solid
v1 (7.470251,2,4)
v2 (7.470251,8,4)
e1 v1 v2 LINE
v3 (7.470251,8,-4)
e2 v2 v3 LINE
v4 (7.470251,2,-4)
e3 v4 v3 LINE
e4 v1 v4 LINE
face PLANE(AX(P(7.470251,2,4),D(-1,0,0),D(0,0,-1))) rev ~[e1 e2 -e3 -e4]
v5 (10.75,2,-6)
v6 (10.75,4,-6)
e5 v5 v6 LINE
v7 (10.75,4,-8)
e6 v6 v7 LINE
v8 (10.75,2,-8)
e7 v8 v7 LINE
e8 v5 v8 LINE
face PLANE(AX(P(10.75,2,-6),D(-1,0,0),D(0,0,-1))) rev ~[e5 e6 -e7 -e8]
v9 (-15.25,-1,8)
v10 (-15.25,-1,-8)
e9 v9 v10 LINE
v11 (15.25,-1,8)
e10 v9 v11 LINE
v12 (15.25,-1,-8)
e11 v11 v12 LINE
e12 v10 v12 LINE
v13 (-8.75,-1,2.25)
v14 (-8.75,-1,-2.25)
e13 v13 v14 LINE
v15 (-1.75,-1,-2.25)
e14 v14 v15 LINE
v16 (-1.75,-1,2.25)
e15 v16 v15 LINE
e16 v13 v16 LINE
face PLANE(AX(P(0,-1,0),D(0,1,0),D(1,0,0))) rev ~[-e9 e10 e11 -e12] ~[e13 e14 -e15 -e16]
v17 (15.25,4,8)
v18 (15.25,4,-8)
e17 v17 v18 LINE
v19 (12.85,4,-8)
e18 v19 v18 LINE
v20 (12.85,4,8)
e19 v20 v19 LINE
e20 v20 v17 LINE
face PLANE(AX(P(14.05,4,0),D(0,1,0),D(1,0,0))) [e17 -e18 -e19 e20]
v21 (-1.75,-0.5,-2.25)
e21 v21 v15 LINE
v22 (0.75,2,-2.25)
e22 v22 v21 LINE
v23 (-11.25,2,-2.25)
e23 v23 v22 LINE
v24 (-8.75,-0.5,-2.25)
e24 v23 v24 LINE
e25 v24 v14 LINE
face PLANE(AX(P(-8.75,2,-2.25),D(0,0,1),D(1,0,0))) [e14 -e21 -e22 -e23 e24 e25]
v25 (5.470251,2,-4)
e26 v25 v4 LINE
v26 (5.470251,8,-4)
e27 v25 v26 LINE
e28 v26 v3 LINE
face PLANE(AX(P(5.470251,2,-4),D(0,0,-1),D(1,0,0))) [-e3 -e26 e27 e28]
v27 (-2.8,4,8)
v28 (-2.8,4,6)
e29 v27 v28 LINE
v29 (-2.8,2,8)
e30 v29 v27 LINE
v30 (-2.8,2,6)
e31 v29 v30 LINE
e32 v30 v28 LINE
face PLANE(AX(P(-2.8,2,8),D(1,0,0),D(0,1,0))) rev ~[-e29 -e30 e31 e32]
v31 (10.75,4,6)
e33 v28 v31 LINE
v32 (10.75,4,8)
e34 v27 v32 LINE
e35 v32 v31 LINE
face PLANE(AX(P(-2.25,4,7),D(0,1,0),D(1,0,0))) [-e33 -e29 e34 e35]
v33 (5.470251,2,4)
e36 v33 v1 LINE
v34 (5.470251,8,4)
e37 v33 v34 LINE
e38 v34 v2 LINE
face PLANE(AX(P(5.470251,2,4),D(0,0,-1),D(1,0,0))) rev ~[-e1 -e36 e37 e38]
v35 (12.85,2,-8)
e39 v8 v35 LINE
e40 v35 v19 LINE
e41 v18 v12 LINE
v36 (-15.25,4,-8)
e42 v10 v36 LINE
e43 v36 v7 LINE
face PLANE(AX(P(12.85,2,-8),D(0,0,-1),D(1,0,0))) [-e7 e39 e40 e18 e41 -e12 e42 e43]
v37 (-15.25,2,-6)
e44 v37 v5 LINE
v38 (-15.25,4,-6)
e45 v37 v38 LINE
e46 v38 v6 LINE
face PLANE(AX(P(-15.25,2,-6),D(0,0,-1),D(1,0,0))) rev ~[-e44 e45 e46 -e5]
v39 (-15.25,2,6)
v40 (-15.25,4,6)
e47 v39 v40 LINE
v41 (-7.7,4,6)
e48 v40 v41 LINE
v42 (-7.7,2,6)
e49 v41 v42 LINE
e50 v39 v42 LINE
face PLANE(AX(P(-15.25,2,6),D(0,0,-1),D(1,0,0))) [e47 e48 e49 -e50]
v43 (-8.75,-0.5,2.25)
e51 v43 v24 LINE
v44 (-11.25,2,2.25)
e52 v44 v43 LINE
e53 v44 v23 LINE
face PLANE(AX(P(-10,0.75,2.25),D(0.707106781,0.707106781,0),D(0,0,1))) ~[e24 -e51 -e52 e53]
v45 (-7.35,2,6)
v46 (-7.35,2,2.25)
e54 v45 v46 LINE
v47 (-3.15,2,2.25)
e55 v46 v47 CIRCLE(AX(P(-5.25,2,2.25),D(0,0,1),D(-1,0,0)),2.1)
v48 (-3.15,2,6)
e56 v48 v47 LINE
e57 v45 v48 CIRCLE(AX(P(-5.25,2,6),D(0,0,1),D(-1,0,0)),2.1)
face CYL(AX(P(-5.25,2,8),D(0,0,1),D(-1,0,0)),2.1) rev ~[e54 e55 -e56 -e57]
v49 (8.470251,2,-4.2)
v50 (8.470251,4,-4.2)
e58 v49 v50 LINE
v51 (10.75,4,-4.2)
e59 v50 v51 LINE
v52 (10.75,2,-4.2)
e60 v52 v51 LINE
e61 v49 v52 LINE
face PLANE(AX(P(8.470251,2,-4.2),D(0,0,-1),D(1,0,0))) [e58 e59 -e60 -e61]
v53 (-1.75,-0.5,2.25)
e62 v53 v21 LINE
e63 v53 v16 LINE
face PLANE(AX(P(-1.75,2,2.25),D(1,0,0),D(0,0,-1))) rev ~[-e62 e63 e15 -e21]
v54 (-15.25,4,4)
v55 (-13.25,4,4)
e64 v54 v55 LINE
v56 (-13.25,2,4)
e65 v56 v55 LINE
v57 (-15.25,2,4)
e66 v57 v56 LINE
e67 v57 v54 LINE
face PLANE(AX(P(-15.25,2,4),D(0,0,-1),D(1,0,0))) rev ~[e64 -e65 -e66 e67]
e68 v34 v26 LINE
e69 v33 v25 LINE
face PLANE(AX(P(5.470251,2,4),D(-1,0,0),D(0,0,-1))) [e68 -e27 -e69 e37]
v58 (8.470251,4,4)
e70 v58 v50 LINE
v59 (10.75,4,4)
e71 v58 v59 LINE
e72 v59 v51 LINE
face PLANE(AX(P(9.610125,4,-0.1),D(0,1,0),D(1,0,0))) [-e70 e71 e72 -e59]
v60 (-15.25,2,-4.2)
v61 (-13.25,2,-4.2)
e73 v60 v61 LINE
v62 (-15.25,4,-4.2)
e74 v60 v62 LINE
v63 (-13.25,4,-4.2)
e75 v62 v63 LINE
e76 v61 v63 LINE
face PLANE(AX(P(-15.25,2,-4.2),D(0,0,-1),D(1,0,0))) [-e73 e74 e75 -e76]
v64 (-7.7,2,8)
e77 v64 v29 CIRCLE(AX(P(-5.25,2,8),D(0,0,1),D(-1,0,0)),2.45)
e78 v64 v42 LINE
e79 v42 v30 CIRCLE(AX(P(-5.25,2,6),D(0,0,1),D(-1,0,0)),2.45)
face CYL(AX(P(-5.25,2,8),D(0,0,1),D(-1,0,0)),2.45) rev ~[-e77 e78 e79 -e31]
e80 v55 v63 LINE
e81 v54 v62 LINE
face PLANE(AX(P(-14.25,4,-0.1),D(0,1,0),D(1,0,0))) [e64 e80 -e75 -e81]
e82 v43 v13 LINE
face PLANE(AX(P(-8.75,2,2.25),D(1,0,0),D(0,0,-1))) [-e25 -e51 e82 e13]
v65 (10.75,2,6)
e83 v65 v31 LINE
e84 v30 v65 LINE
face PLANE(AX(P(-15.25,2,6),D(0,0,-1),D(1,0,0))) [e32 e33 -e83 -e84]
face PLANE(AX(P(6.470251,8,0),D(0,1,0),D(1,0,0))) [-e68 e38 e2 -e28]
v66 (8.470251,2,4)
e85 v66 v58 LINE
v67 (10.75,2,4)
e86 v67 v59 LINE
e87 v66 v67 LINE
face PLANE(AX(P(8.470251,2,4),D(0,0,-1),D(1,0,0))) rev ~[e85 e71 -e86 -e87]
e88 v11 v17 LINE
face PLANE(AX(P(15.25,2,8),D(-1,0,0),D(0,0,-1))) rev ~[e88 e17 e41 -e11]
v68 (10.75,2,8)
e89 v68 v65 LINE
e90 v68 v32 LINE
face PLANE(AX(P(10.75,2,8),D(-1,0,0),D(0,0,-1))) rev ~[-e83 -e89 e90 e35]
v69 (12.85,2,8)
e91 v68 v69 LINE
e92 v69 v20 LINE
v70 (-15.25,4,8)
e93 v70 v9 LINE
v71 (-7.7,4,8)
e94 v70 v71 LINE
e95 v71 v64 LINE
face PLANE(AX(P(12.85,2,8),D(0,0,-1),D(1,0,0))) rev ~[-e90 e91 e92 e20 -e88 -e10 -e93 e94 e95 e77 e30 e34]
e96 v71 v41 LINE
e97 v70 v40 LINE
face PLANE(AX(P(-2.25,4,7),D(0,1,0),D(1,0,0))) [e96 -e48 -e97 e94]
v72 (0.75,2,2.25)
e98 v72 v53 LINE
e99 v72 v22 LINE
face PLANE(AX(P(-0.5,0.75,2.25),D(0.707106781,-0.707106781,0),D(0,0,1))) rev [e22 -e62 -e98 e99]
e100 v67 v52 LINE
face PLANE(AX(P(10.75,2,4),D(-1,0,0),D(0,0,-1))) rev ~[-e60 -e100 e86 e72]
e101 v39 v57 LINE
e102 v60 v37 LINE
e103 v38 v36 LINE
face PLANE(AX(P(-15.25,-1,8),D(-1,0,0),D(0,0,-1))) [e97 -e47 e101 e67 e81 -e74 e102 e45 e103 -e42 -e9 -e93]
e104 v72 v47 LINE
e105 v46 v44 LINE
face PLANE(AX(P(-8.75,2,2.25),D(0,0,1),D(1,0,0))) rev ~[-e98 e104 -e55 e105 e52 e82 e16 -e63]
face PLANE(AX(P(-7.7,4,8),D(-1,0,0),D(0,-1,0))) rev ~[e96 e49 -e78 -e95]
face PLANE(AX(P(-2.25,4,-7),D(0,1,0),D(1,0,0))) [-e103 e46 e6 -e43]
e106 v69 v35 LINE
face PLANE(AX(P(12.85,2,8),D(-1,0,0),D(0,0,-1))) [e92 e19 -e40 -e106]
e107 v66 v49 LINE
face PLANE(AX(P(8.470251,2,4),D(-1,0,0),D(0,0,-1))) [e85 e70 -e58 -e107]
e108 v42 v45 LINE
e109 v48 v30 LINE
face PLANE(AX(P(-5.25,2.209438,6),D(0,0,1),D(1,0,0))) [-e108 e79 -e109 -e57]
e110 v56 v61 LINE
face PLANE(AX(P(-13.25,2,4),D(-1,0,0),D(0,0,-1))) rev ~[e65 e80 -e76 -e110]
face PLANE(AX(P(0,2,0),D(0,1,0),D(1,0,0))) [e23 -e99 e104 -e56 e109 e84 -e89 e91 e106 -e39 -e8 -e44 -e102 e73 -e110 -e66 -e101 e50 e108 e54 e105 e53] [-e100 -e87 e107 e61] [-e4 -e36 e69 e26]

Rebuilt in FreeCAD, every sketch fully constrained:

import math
import FreeCAD as App
import Part
import Sketcher
Q = App.Units.Quantity


def edges_at(feature, points):
    """Names of the edges that pass closest to the given points."""
    edges = feature.Shape.Edges
    near = lambda p: min(range(len(edges)), key=lambda i: edges[i].distToShape(Part.Vertex(*p))[0])
    return sorted({f"Edge{near(p) + 1}" for p in points})

doc = App.newDocument("Part")
params = doc.addObject("Spreadsheet::Sheet", "Params")
for row, (alias, value) in enumerate([
    ("sketch1_height", "16 mm"),
    ("sketch1_width", "30.5 mm"),
    ("pad1_length", "2 mm"),
    ("pad1_length2", "1 mm"),
    ("sketch2_width", "26 mm"),
    ("sketch2_width2", "2 mm"),
    ("sketch2_height", "16 mm"),
    ("sketch2_width3", "2.4 mm"),
    ("sketch2_height2", "8.2 mm"),
    ("pad2_length", "2 mm"),
    ("sketch3_width", "2 mm"),
    ("sketch3_height", "8 mm"),
    ("pad3_length", "6 mm"),
    ("sketch4_width", "7 mm"),
    ("sketch4_height", "4.5 mm"),
    ("pocket1_length", "3 mm"),
    ("sketch5_radius", "2.1 mm"),
    ("sketch5_height", "2.2 mm"),
    ("pocket2_length", "7 mm"),
    ("sketch6_height", "2 mm"),
    ("sketch6_radius", "2.45 mm"),
    ("pocket3_length", "2 mm"),
    ("chamfer_size", "2.5 mm"),
], start=1):
    params.set(f"A{row}", alias)
    params.set(f"B{row}", "=" + value)
    params.setAlias(f"B{row}", alias)

body = doc.addObject("PartDesign::Body", "Body")

# Sketch on XZ plane
sketch1 = body.newObject("Sketcher::SketchObject", "Sketch")
sketch1.AttachmentSupport = (doc.getObject("XZ_Plane"), [""])
sketch1.MapMode = "FlatFace"
sketch1.addGeometry([
    Part.LineSegment(App.Vector(-15.25, -8, 0), App.Vector(-15.25, 8, 0)),
    Part.LineSegment(App.Vector(-15.25, 8, 0), App.Vector(15.25, 8, 0)),
    Part.LineSegment(App.Vector(15.25, 8, 0), App.Vector(15.25, -8, 0)),
    Part.LineSegment(App.Vector(15.25, -8, 0), App.Vector(-15.25, -8, 0)),
], False)
sketch1.addConstraint([
    Sketcher.Constraint("Coincident", 0, 2, 1, 1),
    Sketcher.Constraint("Coincident", 1, 2, 2, 1),
    Sketcher.Constraint("Coincident", 2, 2, 3, 1),
    Sketcher.Constraint("Coincident", 3, 2, 0, 1),
    Sketcher.Constraint("Vertical", 0),
    Sketcher.Constraint("Horizontal", 1),
    Sketcher.Constraint("Vertical", 2),
    Sketcher.Constraint("Horizontal", 3),
    Sketcher.Constraint("Symmetric", 0, 2, 2, 2, -1, 1),
    Sketcher.Constraint("DistanceY", 0, 1, 0, 2, Q("16 mm")),
    Sketcher.Constraint("DistanceX", 1, 1, 1, 2, Q("30.5 mm")),
])
sketch1.setExpression("Constraints[9]", "Params.sketch1_height")
sketch1.setExpression("Constraints[10]", "Params.sketch1_width")
pad1 = body.newObject("PartDesign::Pad", "Pad")
pad1.Profile = sketch1
pad1.Type = "TwoLengths"
pad1.setExpression("Length", "Params.pad1_length")
pad1.setExpression("Length2", "Params.pad1_length2")
pad1.Reversed = True

# Sketch on XZ plane
sketch2 = body.newObject("Sketcher::SketchObject", "Sketch001")
sketch2.AttachmentSupport = (doc.getObject("XZ_Plane"), [""])
sketch2.MapMode = "FlatFace"
sketch2.AttachmentOffset = App.Placement(App.Vector(0, 0, -2), App.Rotation())
sketch2.addGeometry([
    Part.LineSegment(App.Vector(12.85, -8, 0), App.Vector(12.85, 8, 0)),  # 0
    Part.LineSegment(App.Vector(12.85, 8, 0), App.Vector(15.25, 8, 0)),  # 1
    Part.LineSegment(App.Vector(15.25, 8, 0), App.Vector(15.25, -8, 0)),  # 2
    Part.LineSegment(App.Vector(15.25, -8, 0), App.Vector(12.85, -8, 0)),  # 3
    Part.LineSegment(App.Vector(-15.25, -8, 0), App.Vector(-15.25, -6, 0)),  # 4
    Part.LineSegment(App.Vector(-15.25, -6, 0), App.Vector(10.75, -6, 0)),  # 5
    Part.LineSegment(App.Vector(10.75, -6, 0), App.Vector(10.75, -8, 0)),  # 6
    Part.LineSegment(App.Vector(10.75, -8, 0), App.Vector(-15.25, -8, 0)),  # 7
    Part.LineSegment(App.Vector(-15.25, 6, 0), App.Vector(-15.25, 8, 0)),  # 8
    Part.LineSegment(App.Vector(-15.25, 8, 0), App.Vector(10.75, 8, 0)),  # 9
    Part.LineSegment(App.Vector(10.75, 8, 0), App.Vector(10.75, 6, 0)),  # 10
    Part.LineSegment(App.Vector(10.75, 6, 0), App.Vector(-15.25, 6, 0)),  # 11
    Part.LineSegment(App.Vector(-15.25, -4.2, 0), App.Vector(-15.25, 4, 0)),  # 12
    Part.LineSegment(App.Vector(-15.25, 4, 0), App.Vector(-13.25, 4, 0)),  # 13
    Part.LineSegment(App.Vector(-13.25, 4, 0), App.Vector(-13.25, -4.2, 0)),  # 14
    Part.LineSegment(App.Vector(-13.25, -4.2, 0), App.Vector(-15.25, -4.2, 0)),  # 15
    Part.LineSegment(App.Vector(8.470251, -4.2, 0), App.Vector(8.470251, 4, 0)),  # 16
    Part.LineSegment(App.Vector(8.470251, 4, 0), App.Vector(10.75, 4, 0)),  # 17
    Part.LineSegment(App.Vector(10.75, 4, 0), App.Vector(10.75, -4.2, 0)),  # 18
    Part.LineSegment(App.Vector(10.75, -4.2, 0), App.Vector(8.470251, -4.2, 0)),  # 19
], False)
sketch2.addConstraint([
    Sketcher.Constraint("Coincident", 0, 2, 1, 1),
    Sketcher.Constraint("Coincident", 1, 2, 2, 1),
    Sketcher.Constraint("Coincident", 2, 2, 3, 1),
    Sketcher.Constraint("Coincident", 3, 2, 0, 1),
    Sketcher.Constraint("Coincident", 4, 2, 5, 1),
    Sketcher.Constraint("Coincident", 5, 2, 6, 1),
    Sketcher.Constraint("Coincident", 6, 2, 7, 1),
    Sketcher.Constraint("Coincident", 7, 2, 4, 1),
    Sketcher.Constraint("Coincident", 8, 2, 9, 1),
    Sketcher.Constraint("Coincident", 9, 2, 10, 1),
    Sketcher.Constraint("Coincident", 10, 2, 11, 1),
    Sketcher.Constraint("Coincident", 11, 2, 8, 1),
    Sketcher.Constraint("Coincident", 12, 2, 13, 1),
    Sketcher.Constraint("Coincident", 13, 2, 14, 1),
    Sketcher.Constraint("Coincident", 14, 2, 15, 1),
    Sketcher.Constraint("Coincident", 15, 2, 12, 1),
    Sketcher.Constraint("Coincident", 16, 2, 17, 1),
    Sketcher.Constraint("Coincident", 17, 2, 18, 1),
    Sketcher.Constraint("Coincident", 18, 2, 19, 1),
    Sketcher.Constraint("Coincident", 19, 2, 16, 1),
    Sketcher.Constraint("Vertical", 0),
    Sketcher.Constraint("Horizontal", 1),
    Sketcher.Constraint("Vertical", 2),
    Sketcher.Constraint("Horizontal", 3),
    Sketcher.Constraint("Vertical", 4),
    Sketcher.Constraint("Horizontal", 5),
    Sketcher.Constraint("Vertical", 6),
    Sketcher.Constraint("Horizontal", 7),
    Sketcher.Constraint("Vertical", 8),
    Sketcher.Constraint("Horizontal", 9),
    Sketcher.Constraint("Vertical", 10),
    Sketcher.Constraint("Horizontal", 11),
    Sketcher.Constraint("Vertical", 12),
    Sketcher.Constraint("Horizontal", 13),
    Sketcher.Constraint("Vertical", 14),
    Sketcher.Constraint("Horizontal", 15),
    Sketcher.Constraint("Vertical", 16),
    Sketcher.Constraint("Horizontal", 17),
    Sketcher.Constraint("Vertical", 18),
    Sketcher.Constraint("Horizontal", 19),
    Sketcher.Constraint("Symmetric", 1, 2, 7, 2, -1, 1),
    Sketcher.Constraint("Symmetric", 2, 2, 8, 2, -1, 1),
    Sketcher.Constraint("Symmetric", 6, 2, 9, 2, -1),
    Sketcher.Constraint("Horizontal", 13, 2, 16, 2),
    Sketcher.Constraint("Horizontal", 15, 2, 18, 2),
    Sketcher.Constraint("Vertical", 11, 2, 12, 2),
    Sketcher.Constraint("Vertical", 10, 2, 17, 2),
    Sketcher.Constraint("Equal", 15, 4),
    Sketcher.Constraint("Equal", 6, 8),
    Sketcher.Constraint("DistanceX", 5, 1, 5, 2, Q("26 mm")),
    Sketcher.Constraint("DistanceX", 13, 1, 13, 2, Q("2 mm")),
    Sketcher.Constraint("DistanceY", 0, 1, 0, 2, Q("16 mm")),
    Sketcher.Constraint("DistanceX", 1, 1, 1, 2, Q("2.4 mm")),
    Sketcher.Constraint("DistanceY", 12, 1, 12, 2, Q("8.2 mm")),
    Sketcher.Constraint("DistanceY", -1, 1, 12, 2, Q("4 mm")),
    Sketcher.Constraint("DistanceX", 4, 2, 3, 2, Q("28.1 mm")),
    Sketcher.Constraint("DistanceX", 17, 1, 17, 2, Q("2.279749 mm")),
])
sketch2.setExpression("Constraints[49]", "Params.sketch2_width")
sketch2.setExpression("Constraints[50]", "Params.sketch2_width2")
sketch2.setExpression("Constraints[51]", "Params.sketch2_height")
sketch2.setExpression("Constraints[52]", "Params.sketch2_width3")
sketch2.setExpression("Constraints[53]", "Params.sketch2_height2")
pad2 = body.newObject("PartDesign::Pad", "Pad001")
pad2.Profile = sketch2
pad2.setExpression("Length", "Params.pad2_length")
pad2.Reversed = True

# Sketch on XZ plane
sketch3 = body.newObject("Sketcher::SketchObject", "Sketch002")
sketch3.AttachmentSupport = (doc.getObject("XZ_Plane"), [""])
sketch3.MapMode = "FlatFace"
sketch3.AttachmentOffset = App.Placement(App.Vector(0, 0, -2), App.Rotation())
sketch3.addGeometry([
    Part.LineSegment(App.Vector(5.470251, -4, 0), App.Vector(5.470251, 4, 0)),
    Part.LineSegment(App.Vector(5.470251, 4, 0), App.Vector(7.470251, 4, 0)),
    Part.LineSegment(App.Vector(7.470251, 4, 0), App.Vector(7.470251, -4, 0)),
    Part.LineSegment(App.Vector(7.470251, -4, 0), App.Vector(5.470251, -4, 0)),
], False)
sketch3.addConstraint([
    Sketcher.Constraint("Coincident", 0, 2, 1, 1),
    Sketcher.Constraint("Coincident", 1, 2, 2, 1),
    Sketcher.Constraint("Coincident", 2, 2, 3, 1),
    Sketcher.Constraint("Coincident", 3, 2, 0, 1),
    Sketcher.Constraint("Vertical", 0),
    Sketcher.Constraint("Horizontal", 1),
    Sketcher.Constraint("Vertical", 2),
    Sketcher.Constraint("Horizontal", 3),
    Sketcher.Constraint("DistanceX", 1, 1, 1, 2, Q("2 mm")),
    Sketcher.Constraint("DistanceY", 0, 1, 0, 2, Q("8 mm")),
    Sketcher.Constraint("DistanceY", -1, 1, 0, 2, Q("4 mm")),
    Sketcher.Constraint("DistanceX", -1, 1, 0, 2, Q("5.470251 mm")),
])
sketch3.setExpression("Constraints[8]", "Params.sketch3_width")
sketch3.setExpression("Constraints[9]", "Params.sketch3_height")
pad3 = body.newObject("PartDesign::Pad", "Pad002")
pad3.Profile = sketch3
pad3.setExpression("Length", "Params.pad3_length")
pad3.Reversed = True

# Sketch on XZ plane
sketch4 = body.newObject("Sketcher::SketchObject", "Sketch003")
sketch4.AttachmentSupport = (doc.getObject("XZ_Plane"), [""])
sketch4.MapMode = "FlatFace"
sketch4.AttachmentOffset = App.Placement(App.Vector(0, 0, -2), App.Rotation())
sketch4.addGeometry([
    Part.LineSegment(App.Vector(-8.75, -2.25, 0), App.Vector(-8.75, 2.25, 0)),
    Part.LineSegment(App.Vector(-8.75, 2.25, 0), App.Vector(-1.75, 2.25, 0)),
    Part.LineSegment(App.Vector(-1.75, 2.25, 0), App.Vector(-1.75, -2.25, 0)),
    Part.LineSegment(App.Vector(-1.75, -2.25, 0), App.Vector(-8.75, -2.25, 0)),
], False)
sketch4.addConstraint([
    Sketcher.Constraint("Coincident", 0, 2, 1, 1),
    Sketcher.Constraint("Coincident", 1, 2, 2, 1),
    Sketcher.Constraint("Coincident", 2, 2, 3, 1),
    Sketcher.Constraint("Coincident", 3, 2, 0, 1),
    Sketcher.Constraint("Vertical", 0),
    Sketcher.Constraint("Horizontal", 1),
    Sketcher.Constraint("Vertical", 2),
    Sketcher.Constraint("Horizontal", 3),
    Sketcher.Constraint("DistanceX", 1, 1, 1, 2, Q("7 mm")),
    Sketcher.Constraint("DistanceY", 0, 1, 0, 2, Q("4.5 mm")),
    Sketcher.Constraint("DistanceX", 0, 2, -1, 1, Q("8.75 mm")),
    Sketcher.Constraint("DistanceY", -1, 1, 0, 2, Q("2.25 mm")),
])
sketch4.setExpression("Constraints[8]", "Params.sketch4_width")
sketch4.setExpression("Constraints[9]", "Params.sketch4_height")
pocket1 = body.newObject("PartDesign::Pocket", "Pocket")
pocket1.Profile = sketch4
pocket1.setExpression("Length", "Params.pocket1_length")
pocket1.Reversed = True

# Sketch on XY plane
sketch5 = body.newObject("Sketcher::SketchObject", "Sketch004")
sketch5.AttachmentSupport = (doc.getObject("XY_Plane"), [""])
sketch5.MapMode = "FlatFace"
sketch5.AttachmentOffset = App.Placement(App.Vector(0, 0, 8), App.Rotation())
sketch5.addGeometry([
    Part.LineSegment(App.Vector(-3.15, 4.2, 0), App.Vector(-3.15, 2, 0)),
    Part.ArcOfCircle(Part.Circle(App.Vector(-5.25, 2, 0), App.Vector(0, 0, 1), 2.1), math.radians(180), math.radians(360)),
    Part.LineSegment(App.Vector(-7.35, 2, 0), App.Vector(-7.35, 4.2, 0)),
    Part.LineSegment(App.Vector(-7.35, 4.2, 0), App.Vector(-3.15, 4.2, 0)),
], False)
sketch5.addConstraint([
    Sketcher.Constraint("Tangent", 0, 2, 1, 2),
    Sketcher.Constraint("Tangent", 1, 1, 2, 1),
    Sketcher.Constraint("Coincident", 2, 2, 3, 1),
    Sketcher.Constraint("Coincident", 3, 2, 0, 1),
    Sketcher.Constraint("Vertical", 0),
    Sketcher.Constraint("Vertical", 2),
    Sketcher.Constraint("Horizontal", 3),
    Sketcher.Constraint("Radius", 1, Q("2.1 mm")),
    Sketcher.Constraint("DistanceY", 0, 2, 0, 1, Q("2.2 mm")),
    Sketcher.Constraint("DistanceY", -1, 1, 1, 3, Q("2 mm")),
    Sketcher.Constraint("DistanceX", 1, 3, -1, 1, Q("5.25 mm")),
])
sketch5.setExpression("Constraints[7]", "Params.sketch5_radius")
sketch5.setExpression("Constraints[8]", "Params.sketch5_height")
pocket2 = body.newObject("PartDesign::Pocket", "Pocket001")
pocket2.Profile = sketch5
pocket2.setExpression("Length", "Params.pocket2_length")

# Sketch on XY plane
sketch6 = body.newObject("Sketcher::SketchObject", "Sketch005")
sketch6.AttachmentSupport = (doc.getObject("XY_Plane"), [""])
sketch6.MapMode = "FlatFace"
sketch6.AttachmentOffset = App.Placement(App.Vector(0, 0, 8), App.Rotation())
sketch6.addGeometry([
    Part.LineSegment(App.Vector(-7.7, 4, 0), App.Vector(-7.7, 2, 0)),
    Part.ArcOfCircle(Part.Circle(App.Vector(-5.25, 2, 0), App.Vector(0, 0, 1), 2.45), math.radians(180), math.radians(360)),
    Part.LineSegment(App.Vector(-2.8, 2, 0), App.Vector(-2.8, 4, 0)),
    Part.LineSegment(App.Vector(-2.8, 4, 0), App.Vector(-7.7, 4, 0)),
], False)
sketch6.addConstraint([
    Sketcher.Constraint("Tangent", 0, 2, 1, 1),
    Sketcher.Constraint("Tangent", 1, 2, 2, 1),
    Sketcher.Constraint("Coincident", 2, 2, 3, 1),
    Sketcher.Constraint("Coincident", 3, 2, 0, 1),
    Sketcher.Constraint("Vertical", 0),
    Sketcher.Constraint("Vertical", 2),
    Sketcher.Constraint("Horizontal", 3),
    Sketcher.Constraint("DistanceY", 0, 2, 0, 1, Q("2 mm")),
    Sketcher.Constraint("Radius", 1, Q("2.45 mm")),
    Sketcher.Constraint("DistanceY", -1, 1, 1, 3, Q("2 mm")),
    Sketcher.Constraint("DistanceX", 0, 2, -1, 1, Q("7.7 mm")),
])
sketch6.setExpression("Constraints[7]", "Params.sketch6_height")
sketch6.setExpression("Constraints[8]", "Params.sketch6_radius")
pocket3 = body.newObject("PartDesign::Pocket", "Pocket002")
pocket3.Profile = sketch6
pocket3.setExpression("Length", "Params.pocket3_length")
doc.recompute()

chamfer = body.newObject("PartDesign::Chamfer", "Chamfer")
chamfer.Base = (pocket3, edges_at(pocket3, [(-1.75, 2, 0), (-8.75, 2, 0)]))
chamfer.setExpression("Size", "Params.chamfer_size")

doc.recompute()
